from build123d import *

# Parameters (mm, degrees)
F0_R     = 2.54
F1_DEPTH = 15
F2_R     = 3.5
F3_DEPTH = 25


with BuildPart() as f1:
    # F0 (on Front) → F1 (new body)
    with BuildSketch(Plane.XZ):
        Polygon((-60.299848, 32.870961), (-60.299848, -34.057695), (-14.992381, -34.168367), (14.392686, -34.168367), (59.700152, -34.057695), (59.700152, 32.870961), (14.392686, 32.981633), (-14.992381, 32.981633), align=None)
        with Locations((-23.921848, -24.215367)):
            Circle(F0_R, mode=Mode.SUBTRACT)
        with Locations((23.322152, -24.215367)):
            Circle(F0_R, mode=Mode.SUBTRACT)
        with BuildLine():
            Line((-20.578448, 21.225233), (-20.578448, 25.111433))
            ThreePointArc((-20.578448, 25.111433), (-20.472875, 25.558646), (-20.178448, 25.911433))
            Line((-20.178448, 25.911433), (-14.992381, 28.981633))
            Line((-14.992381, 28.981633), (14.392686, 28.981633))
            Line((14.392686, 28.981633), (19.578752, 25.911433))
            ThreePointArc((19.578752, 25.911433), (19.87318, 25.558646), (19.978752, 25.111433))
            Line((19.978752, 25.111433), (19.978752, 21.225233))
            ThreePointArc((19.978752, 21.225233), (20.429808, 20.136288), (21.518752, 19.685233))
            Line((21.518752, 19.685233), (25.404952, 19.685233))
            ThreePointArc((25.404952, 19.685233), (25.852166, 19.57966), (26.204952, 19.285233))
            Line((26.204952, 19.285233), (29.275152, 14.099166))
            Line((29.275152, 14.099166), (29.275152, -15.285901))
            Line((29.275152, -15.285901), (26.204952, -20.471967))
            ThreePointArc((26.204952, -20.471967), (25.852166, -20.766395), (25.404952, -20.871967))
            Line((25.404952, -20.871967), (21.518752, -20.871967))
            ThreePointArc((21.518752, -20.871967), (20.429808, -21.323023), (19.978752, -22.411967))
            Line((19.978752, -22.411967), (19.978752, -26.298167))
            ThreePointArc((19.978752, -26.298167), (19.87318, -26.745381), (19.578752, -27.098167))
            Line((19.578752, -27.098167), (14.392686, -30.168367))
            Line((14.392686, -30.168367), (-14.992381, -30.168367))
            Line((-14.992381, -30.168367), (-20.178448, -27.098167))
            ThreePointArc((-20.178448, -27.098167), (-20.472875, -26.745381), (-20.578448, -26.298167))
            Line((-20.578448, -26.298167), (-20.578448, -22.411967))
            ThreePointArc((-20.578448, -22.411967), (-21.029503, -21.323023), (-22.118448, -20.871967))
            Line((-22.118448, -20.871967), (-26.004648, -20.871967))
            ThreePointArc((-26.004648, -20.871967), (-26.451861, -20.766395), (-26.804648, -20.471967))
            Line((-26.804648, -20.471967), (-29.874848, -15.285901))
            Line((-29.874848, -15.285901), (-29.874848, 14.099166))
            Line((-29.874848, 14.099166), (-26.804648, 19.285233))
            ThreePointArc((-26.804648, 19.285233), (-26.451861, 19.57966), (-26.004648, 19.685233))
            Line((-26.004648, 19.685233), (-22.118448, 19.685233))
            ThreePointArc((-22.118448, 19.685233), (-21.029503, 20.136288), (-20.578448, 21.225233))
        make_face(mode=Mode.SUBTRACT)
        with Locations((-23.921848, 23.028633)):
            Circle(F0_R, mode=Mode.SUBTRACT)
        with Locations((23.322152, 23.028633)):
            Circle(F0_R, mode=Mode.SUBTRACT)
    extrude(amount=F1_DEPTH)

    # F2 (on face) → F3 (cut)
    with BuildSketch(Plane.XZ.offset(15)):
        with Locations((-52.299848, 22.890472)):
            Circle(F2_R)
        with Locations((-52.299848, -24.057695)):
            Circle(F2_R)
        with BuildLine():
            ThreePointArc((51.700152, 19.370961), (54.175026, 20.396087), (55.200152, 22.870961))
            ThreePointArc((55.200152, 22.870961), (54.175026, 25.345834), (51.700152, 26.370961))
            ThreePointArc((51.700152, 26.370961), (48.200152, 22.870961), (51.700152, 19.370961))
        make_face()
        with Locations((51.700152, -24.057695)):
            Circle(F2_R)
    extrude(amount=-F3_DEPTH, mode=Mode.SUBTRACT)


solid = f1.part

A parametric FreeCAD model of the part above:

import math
import FreeCAD as App
import Part
import Sketcher


def add_polygon(sketch, points):
    """Adds a closed chain of lines whose ends are joined by coincident constraints."""
    first, n = sketch.GeometryCount, len(points)
    for a, b in zip(points, points[1:] + points[:1]):
        sketch.addGeometry(Part.LineSegment(App.Vector(*a, 0), App.Vector(*b, 0)), False)
    for i in range(n):
        sketch.addConstraint(Sketcher.Constraint("Coincident", first + i, 2, first + (i + 1) % n, 1))

doc = App.newDocument("Part")
body = doc.addObject("PartDesign::Body", "Body")

sketch1 = body.newObject("Sketcher::SketchObject", "Sketch")
sketch1.AttachmentSupport = (doc.getObject("XZ_Plane"), [""])
sketch1.MapMode = "FlatFace"
add_polygon(sketch1, [(-60.3, 32.9), (-60.3, -34.1), (-15, -34.2), (14.4, -34.2), (59.7, -34.1), (59.7, 32.9), (14.4, 33), (-15, 33)])
sketch1.addGeometry(Part.Circle(App.Vector(-23.9, -24.2, 0), App.Vector(0, 0, 1), 2.5), False)
sketch1.addGeometry(Part.Circle(App.Vector(23.3, -24.2, 0), App.Vector(0, 0, 1), 2.5), False)
sketch1.addGeometry(Part.Circle(App.Vector(-23.9, 23, 0), App.Vector(0, 0, 1), 2.5), False)
sketch1.addGeometry(Part.ArcOfCircle(Part.Circle(App.Vector(-22.1, 21.2, 0), App.Vector(0, 0, 1), 1.5), math.radians(-90), math.radians(0)), False)
sketch1.addGeometry(Part.LineSegment(App.Vector(-20.6, 21.2, 0), App.Vector(-20.6, 25.1, 0)), False)
sketch1.addGeometry(Part.ArcOfCircle(Part.Circle(App.Vector(-19.6, 25.1, 0), App.Vector(0, 0, 1), 1), math.radians(127), math.radians(180)), False)
sketch1.addGeometry(Part.LineSegment(App.Vector(-20.2, 25.9, 0), App.Vector(-15, 29, 0)), False)
sketch1.addGeometry(Part.LineSegment(App.Vector(-15, 29, 0), App.Vector(14.4, 29, 0)), False)
sketch1.addGeometry(Part.LineSegment(App.Vector(14.4, 29, 0), App.Vector(19.6, 25.9, 0)), False)
sketch1.addGeometry(Part.ArcOfCircle(Part.Circle(App.Vector(19, 25.1, 0), App.Vector(0, 0, 1), 1), math.radians(0), math.radians(53)), False)
sketch1.addGeometry(Part.LineSegment(App.Vector(20, 25.1, 0), App.Vector(20, 21.2, 0)), False)
sketch1.addGeometry(Part.ArcOfCircle(Part.Circle(App.Vector(21.5, 21.2, 0), App.Vector(0, 0, 1), 1.5), math.radians(180), math.radians(270)), False)
sketch1.addGeometry(Part.LineSegment(App.Vector(21.5, 19.7, 0), App.Vector(25.4, 19.7, 0)), False)
sketch1.addGeometry(Part.ArcOfCircle(Part.Circle(App.Vector(25.4, 18.7, 0), App.Vector(0, 0, 1), 1), math.radians(37), math.radians(90)), False)
sketch1.addGeometry(Part.LineSegment(App.Vector(26.2, 19.3, 0), App.Vector(29.3, 14.1, 0)), False)
sketch1.addGeometry(Part.LineSegment(App.Vector(29.3, 14.1, 0), App.Vector(29.3, -15.3, 0)), False)
sketch1.addGeometry(Part.LineSegment(App.Vector(29.3, -15.3, 0), App.Vector(26.2, -20.5, 0)), False)
sketch1.addGeometry(Part.ArcOfCircle(Part.Circle(App.Vector(25.4, -19.9, 0), App.Vector(0, 0, 1), 1), math.radians(-90), math.radians(-37)), False)
sketch1.addGeometry(Part.LineSegment(App.Vector(25.4, -20.9, 0), App.Vector(21.5, -20.9, 0)), False)
sketch1.addGeometry(Part.ArcOfCircle(Part.Circle(App.Vector(21.5, -22.4, 0), App.Vector(0, 0, 1), 1.5), math.radians(90), math.radians(180)), False)
sketch1.addGeometry(Part.LineSegment(App.Vector(20, -22.4, 0), App.Vector(20, -26.3, 0)), False)
sketch1.addGeometry(Part.ArcOfCircle(Part.Circle(App.Vector(19, -26.3, 0), App.Vector(0, 0, 1), 1), math.radians(-53), math.radians(0)), False)
sketch1.addGeometry(Part.LineSegment(App.Vector(19.6, -27.1, 0), App.Vector(14.4, -30.2, 0)), False)
sketch1.addGeometry(Part.LineSegment(App.Vector(14.4, -30.2, 0), App.Vector(-15, -30.2, 0)), False)
sketch1.addGeometry(Part.LineSegment(App.Vector(-15, -30.2, 0), App.Vector(-20.2, -27.1, 0)), False)
sketch1.addGeometry(Part.ArcOfCircle(Part.Circle(App.Vector(-19.6, -26.3, 0), App.Vector(0, 0, 1), 1), math.radians(180), math.radians(233)), False)
sketch1.addGeometry(Part.LineSegment(App.Vector(-20.6, -26.3, 0), App.Vector(-20.6, -22.4, 0)), False)
sketch1.addGeometry(Part.ArcOfCircle(Part.Circle(App.Vector(-22.1, -22.4, 0), App.Vector(0, 0, 1), 1.5), math.radians(0), math.radians(90)), False)
sketch1.addGeometry(Part.LineSegment(App.Vector(-22.1, -20.9, 0), App.Vector(-26, -20.9, 0)), False)
sketch1.addGeometry(Part.ArcOfCircle(Part.Circle(App.Vector(-26, -19.9, 0), App.Vector(0, 0, 1), 1), math.radians(-143), math.radians(-90)), False)
sketch1.addGeometry(Part.LineSegment(App.Vector(-26.8, -20.5, 0), App.Vector(-29.9, -15.3, 0)), False)
sketch1.addGeometry(Part.LineSegment(App.Vector(-29.9, -15.3, 0), App.Vector(-29.9, 14.1, 0)), False)
sketch1.addGeometry(Part.LineSegment(App.Vector(-29.9, 14.1, 0), App.Vector(-26.8, 19.3, 0)), False)
sketch1.addGeometry(Part.ArcOfCircle(Part.Circle(App.Vector(-26, 18.7, 0), App.Vector(0, 0, 1), 1), math.radians(90), math.radians(143)), False)
sketch1.addGeometry(Part.LineSegment(App.Vector(-26, 19.7, 0), App.Vector(-22.1, 19.7, 0)), False)
sketch1.addGeometry(Part.Circle(App.Vector(23.3, 23, 0), App.Vector(0, 0, 1), 2.5), False)
sketch1.addConstraint([
    Sketcher.Constraint("Tangent", 11, 2, 12, 1),
    Sketcher.Constraint("Tangent", 12, 2, 13, 2),
    Sketcher.Constraint("Coincident", 13, 1, 14, 1),
    Sketcher.Constraint("Coincident", 14, 2, 15, 1),
    Sketcher.Constraint("Coincident", 15, 2, 16, 1),
    Sketcher.Constraint("Coincident", 16, 2, 17, 2),
    Sketcher.Constraint("Tangent", 17, 1, 18, 1),
    Sketcher.Constraint("Tangent", 18, 2, 19, 1),
    Sketcher.Constraint("Tangent", 19, 2, 20, 1),
    Sketcher.Constraint("Tangent", 20, 2, 21, 2),
    Sketcher.Constraint("Coincident", 21, 1, 22, 1),
    Sketcher.Constraint("Coincident", 22, 2, 23, 1),
    Sketcher.Constraint("Coincident", 23, 2, 24, 1),
    Sketcher.Constraint("Coincident", 24, 2, 25, 2),
    Sketcher.Constraint("Coincident", 25, 1, 26, 1),
    Sketcher.Constraint("Tangent", 26, 2, 27, 1),
    Sketcher.Constraint("Tangent", 27, 2, 28, 1),
    Sketcher.Constraint("Coincident", 28, 2, 29, 2),
    Sketcher.Constraint("Coincident", 29, 1, 30, 1),
    Sketcher.Constraint("Coincident", 30, 2, 31, 1),
    Sketcher.Constraint("Coincident", 31, 2, 32, 1),
    Sketcher.Constraint("Coincident", 32, 2, 33, 2),
    Sketcher.Constraint("Tangent", 33, 1, 34, 1),
    Sketcher.Constraint("Tangent", 34, 2, 35, 1),
    Sketcher.Constraint("Tangent", 35, 2, 36, 1),
    Sketcher.Constraint("Tangent", 36, 2, 37, 2),
    Sketcher.Constraint("Coincident", 37, 1, 38, 1),
    Sketcher.Constraint("Coincident", 38, 2, 39, 1),
    Sketcher.Constraint("Coincident", 39, 2, 40, 1),
    Sketcher.Constraint("Coincident", 40, 2, 41, 2),
    Sketcher.Constraint("Tangent", 41, 1, 42, 1),
    Sketcher.Constraint("Tangent", 42, 2, 11, 1),
    Sketcher.Constraint("Vertical", 0),
    Sketcher.Constraint("Horizontal", 2),
    Sketcher.Constraint("Vertical", 4),
    Sketcher.Constraint("Horizontal", 6),
    Sketcher.Constraint("Vertical", 12),
    Sketcher.Constraint("Horizontal", 15),
    Sketcher.Constraint("Vertical", 18),
    Sketcher.Constraint("Horizontal", 20),
    Sketcher.Constraint("Vertical", 23),
    Sketcher.Constraint("Horizontal", 26),
    Sketcher.Constraint("Vertical", 28),
    Sketcher.Constraint("Horizontal", 31),
    Sketcher.Constraint("Vertical", 34),
    Sketcher.Constraint("Horizontal", 36),
    Sketcher.Constraint("Vertical", 39),
    Sketcher.Constraint("Horizontal", 42),
    Sketcher.Constraint("Equal", 8, 9),
    Sketcher.Constraint("Equal", 9, 10),
    Sketcher.Constraint("Equal", 11, 19),
    Sketcher.Constraint("Equal", 19, 27),
    Sketcher.Constraint("Equal", 25, 29),
    Sketcher.Constraint("Equal", 21, 33),
    Sketcher.Constraint("Equal", 27, 35),
    Sketcher.Constraint("Equal", 17, 37),
    Sketcher.Constraint("Equal", 13, 41),
    Sketcher.Constraint("Equal", 10, 43),
    Sketcher.Constraint("Parallel", 1, 5),
    Sketcher.Constraint("Parallel", 3, 7),
    Sketcher.Constraint("Perpendicular", 14, 22),
    Sketcher.Constraint("Perpendicular", 16, 24),
    Sketcher.Constraint("Perpendicular", 22, 30),
    Sketcher.Constraint("Perpendicular", 24, 32),
    Sketcher.Constraint("Perpendicular", 30, 38),
    Sketcher.Constraint("Perpendicular", 32, 40),
    Sketcher.Constraint("Horizontal", 8, 3, 9, 3),
    Sketcher.Constraint("Horizontal", 11, 3, 19, 3),
    Sketcher.Constraint("Horizontal", 27, 3, 35, 3),
    Sketcher.Constraint("Horizontal", 10, 3, 43, 3),
    Sketcher.Constraint("Horizontal", 0, 2, 3, 2),
    Sketcher.Constraint("Horizontal", 4, 2, 7, 2),
    Sketcher.Constraint("Horizontal", 17, 3, 12, 2),
    Sketcher.Constraint("Horizontal", 13, 1, 16, 2),
    Sketcher.Constraint("Horizontal", 33, 3, 28, 2),
    Sketcher.Constraint("Horizontal", 29, 1, 32, 2),
    Sketcher.Constraint("Horizontal", 24, 2, 37, 1),
    Sketcher.Constraint("Horizontal", 23, 2, 38, 2),
    Sketcher.Constraint("Horizontal", 22, 2, 39, 2),
    Sketcher.Constraint("Horizontal", 21, 1, 40, 2),
    Sketcher.Constraint("Vertical", 8, 3, 10, 3),
    Sketcher.Constraint("Vertical", 19, 3, 27, 3),
    Sketcher.Constraint("Vertical", 11, 3, 35, 3),
    Sketcher.Constraint("Vertical", 9, 3, 43, 3),
    Sketcher.Constraint("Vertical", 2, 2, 5, 2),
    Sketcher.Constraint("Vertical", 1, 2, 6, 2),
    Sketcher.Constraint("Vertical", 6, 2, 14, 2),
    Sketcher.Constraint("Vertical", 5, 2, 15, 2),
    Sketcher.Constraint("Vertical", 21, 1, 24, 2),
    Sketcher.Constraint("Vertical", 20, 2, 25, 1),
    Sketcher.Constraint("Vertical", 16, 2, 29, 1),
    Sketcher.Constraint("Vertical", 15, 2, 30, 2),
    Sketcher.Constraint("Vertical", 14, 2, 31, 2),
    Sketcher.Constraint("Vertical", 13, 1, 32, 2),
    Sketcher.Constraint("Vertical", 41, 3, 36, 2),
    Sketcher.Constraint("Equal", 26, 36),
    Sketcher.Constraint("Equal", 42, 12),
    Sketcher.Constraint("Equal", 31, 23),
    Sketcher.Constraint("Equal", 18, 28),
    Sketcher.Constraint("Equal", 16, 22),
    Sketcher.Constraint("Radius", 21, 1.0),
    Sketcher.Constraint("Diameter", 8, 5.08),
    Sketcher.Constraint("Radius", 11, 1.539998),
    Sketcher.Constraint("DistanceY", 14, 2, 6, 2, 4.0),
    Sketcher.Constraint("DistanceY", 2, 2, 30, 2, 4.0),
    Sketcher.Constraint("DistanceX", 12, 2, 13, 1, 0.4),
    Sketcher.Constraint("DistanceY", 12, 2, 13, 1, 0.8),
    Sketcher.Constraint("DistanceX", 16, 2, 17, 1, 0.4),
    Sketcher.Constraint("DistanceX", 20, 2, 21, 1, 0.8),
    Sketcher.Constraint("DistanceX", 20, 1, 20, 2, 3.8862),
    Sketcher.Constraint("Radius", 25, 0.999992),
    Sketcher.Constraint("DistanceX", 8, 3, 9, 3, 47.244),
    Sketcher.Constraint("DistanceY", 8, 3, 10, 3, 47.244),
    Sketcher.Constraint("DistanceX", 0, 2, 8, 3, 36.378),
    Sketcher.Constraint("DistanceY", 1, 2, 8, 3, 9.953),
    Sketcher.Constraint("DistanceX", 9, 3, 3, 2, 36.378),
    Sketcher.Constraint("DistanceY", 43, 3, 5, 2, 9.953),
    Sketcher.Constraint("Distance", 3, 45.307601),
    Sketcher.Constraint("DistanceY", 23, 2, -1, 1, 15.285901),
    Sketcher.Constraint("DistanceX", 10, 3, 11, 3, 1.803402),
    Sketcher.Constraint("DistanceY", 0, 2, 0, 1, 66.928656),
    Sketcher.Constraint("DistanceX", 8, 3, -1, 1, 23.921848),
])
pad1 = body.newObject("PartDesign::Pad", "Pad")
pad1.Profile = sketch1
pad1.Length = 15

sketch2 = body.newObject("Sketcher::SketchObject", "Sketch001")
sketch2.AttachmentSupport = (doc.getObject("XZ_Plane"), [""])
sketch2.MapMode = "FlatFace"
sketch2.AttachmentOffset = App.Placement(App.Vector(0, 0, 15), App.Rotation())
sketch2.addGeometry([
    Part.Circle(App.Vector(-52.3, 22.9, 0), App.Vector(0, 0, 1), 3.5),
    Part.Circle(App.Vector(-52.3, -24.1, 0), App.Vector(0, 0, 1), 3.5),
    Part.ArcOfCircle(Part.Circle(App.Vector(51.7, 22.9, 0), App.Vector(0, 0, 1), 3.5), math.radians(-90), math.radians(0)),
    Part.ArcOfCircle(Part.Circle(App.Vector(51.7, 22.9, 0), App.Vector(0, 0, 1), 3.5), math.radians(0), math.radians(90)),
    Part.ArcOfCircle(Part.Circle(App.Vector(51.7, 22.9, 0), App.Vector(0, 0, 1), 3.5), math.radians(90), math.radians(270)),
    Part.Circle(App.Vector(51.7, -24.1, 0), App.Vector(0, 0, 1), 3.5),
], False)
sketch2.addConstraint([
    Sketcher.Constraint("Tangent", 2, 2, 3, 1),
    Sketcher.Constraint("Tangent", 3, 2, 4, 1),
    Sketcher.Constraint("Tangent", 4, 2, 2, 1),
    Sketcher.Constraint("Equal", 0, 1),
    Sketcher.Constraint("Equal", 1, 2),
    Sketcher.Constraint("Equal", 4, 5),
    Sketcher.Constraint("Horizontal", 1, 3, 5, 3),
    Sketcher.Constraint("Horizontal", 4, 3, 2, 2),
    Sketcher.Constraint("Vertical", 0, 3, 1, 3),
    Sketcher.Constraint("Vertical", 4, 3, 5, 3),
    Sketcher.Constraint("Vertical", 5, 3, 3, 2),
    Sketcher.Constraint("Vertical", 3, 2, 4, 2),
    Sketcher.Constraint("Diameter", 0, 7.0),
    Sketcher.Constraint("DistanceX", 0, 3, 2, 3, 104.000001),
    Sketcher.Constraint("DistanceY", -1, 1, 0, 3, 22.890472),
    Sketcher.Constraint("DistanceY", -1, 1, 2, 3, 22.87096),
    Sketcher.Constraint("DistanceX", -1, 1, 3, 3, 51.700151),
    Sketcher.Constraint("DistanceY", 1, 3, -1, 1, 24.057695),
])
pocket1 = body.newObject("PartDesign::Pocket", "Pocket")
pocket1.Profile = sketch2
pocket1.Length = 25

doc.recompute()
